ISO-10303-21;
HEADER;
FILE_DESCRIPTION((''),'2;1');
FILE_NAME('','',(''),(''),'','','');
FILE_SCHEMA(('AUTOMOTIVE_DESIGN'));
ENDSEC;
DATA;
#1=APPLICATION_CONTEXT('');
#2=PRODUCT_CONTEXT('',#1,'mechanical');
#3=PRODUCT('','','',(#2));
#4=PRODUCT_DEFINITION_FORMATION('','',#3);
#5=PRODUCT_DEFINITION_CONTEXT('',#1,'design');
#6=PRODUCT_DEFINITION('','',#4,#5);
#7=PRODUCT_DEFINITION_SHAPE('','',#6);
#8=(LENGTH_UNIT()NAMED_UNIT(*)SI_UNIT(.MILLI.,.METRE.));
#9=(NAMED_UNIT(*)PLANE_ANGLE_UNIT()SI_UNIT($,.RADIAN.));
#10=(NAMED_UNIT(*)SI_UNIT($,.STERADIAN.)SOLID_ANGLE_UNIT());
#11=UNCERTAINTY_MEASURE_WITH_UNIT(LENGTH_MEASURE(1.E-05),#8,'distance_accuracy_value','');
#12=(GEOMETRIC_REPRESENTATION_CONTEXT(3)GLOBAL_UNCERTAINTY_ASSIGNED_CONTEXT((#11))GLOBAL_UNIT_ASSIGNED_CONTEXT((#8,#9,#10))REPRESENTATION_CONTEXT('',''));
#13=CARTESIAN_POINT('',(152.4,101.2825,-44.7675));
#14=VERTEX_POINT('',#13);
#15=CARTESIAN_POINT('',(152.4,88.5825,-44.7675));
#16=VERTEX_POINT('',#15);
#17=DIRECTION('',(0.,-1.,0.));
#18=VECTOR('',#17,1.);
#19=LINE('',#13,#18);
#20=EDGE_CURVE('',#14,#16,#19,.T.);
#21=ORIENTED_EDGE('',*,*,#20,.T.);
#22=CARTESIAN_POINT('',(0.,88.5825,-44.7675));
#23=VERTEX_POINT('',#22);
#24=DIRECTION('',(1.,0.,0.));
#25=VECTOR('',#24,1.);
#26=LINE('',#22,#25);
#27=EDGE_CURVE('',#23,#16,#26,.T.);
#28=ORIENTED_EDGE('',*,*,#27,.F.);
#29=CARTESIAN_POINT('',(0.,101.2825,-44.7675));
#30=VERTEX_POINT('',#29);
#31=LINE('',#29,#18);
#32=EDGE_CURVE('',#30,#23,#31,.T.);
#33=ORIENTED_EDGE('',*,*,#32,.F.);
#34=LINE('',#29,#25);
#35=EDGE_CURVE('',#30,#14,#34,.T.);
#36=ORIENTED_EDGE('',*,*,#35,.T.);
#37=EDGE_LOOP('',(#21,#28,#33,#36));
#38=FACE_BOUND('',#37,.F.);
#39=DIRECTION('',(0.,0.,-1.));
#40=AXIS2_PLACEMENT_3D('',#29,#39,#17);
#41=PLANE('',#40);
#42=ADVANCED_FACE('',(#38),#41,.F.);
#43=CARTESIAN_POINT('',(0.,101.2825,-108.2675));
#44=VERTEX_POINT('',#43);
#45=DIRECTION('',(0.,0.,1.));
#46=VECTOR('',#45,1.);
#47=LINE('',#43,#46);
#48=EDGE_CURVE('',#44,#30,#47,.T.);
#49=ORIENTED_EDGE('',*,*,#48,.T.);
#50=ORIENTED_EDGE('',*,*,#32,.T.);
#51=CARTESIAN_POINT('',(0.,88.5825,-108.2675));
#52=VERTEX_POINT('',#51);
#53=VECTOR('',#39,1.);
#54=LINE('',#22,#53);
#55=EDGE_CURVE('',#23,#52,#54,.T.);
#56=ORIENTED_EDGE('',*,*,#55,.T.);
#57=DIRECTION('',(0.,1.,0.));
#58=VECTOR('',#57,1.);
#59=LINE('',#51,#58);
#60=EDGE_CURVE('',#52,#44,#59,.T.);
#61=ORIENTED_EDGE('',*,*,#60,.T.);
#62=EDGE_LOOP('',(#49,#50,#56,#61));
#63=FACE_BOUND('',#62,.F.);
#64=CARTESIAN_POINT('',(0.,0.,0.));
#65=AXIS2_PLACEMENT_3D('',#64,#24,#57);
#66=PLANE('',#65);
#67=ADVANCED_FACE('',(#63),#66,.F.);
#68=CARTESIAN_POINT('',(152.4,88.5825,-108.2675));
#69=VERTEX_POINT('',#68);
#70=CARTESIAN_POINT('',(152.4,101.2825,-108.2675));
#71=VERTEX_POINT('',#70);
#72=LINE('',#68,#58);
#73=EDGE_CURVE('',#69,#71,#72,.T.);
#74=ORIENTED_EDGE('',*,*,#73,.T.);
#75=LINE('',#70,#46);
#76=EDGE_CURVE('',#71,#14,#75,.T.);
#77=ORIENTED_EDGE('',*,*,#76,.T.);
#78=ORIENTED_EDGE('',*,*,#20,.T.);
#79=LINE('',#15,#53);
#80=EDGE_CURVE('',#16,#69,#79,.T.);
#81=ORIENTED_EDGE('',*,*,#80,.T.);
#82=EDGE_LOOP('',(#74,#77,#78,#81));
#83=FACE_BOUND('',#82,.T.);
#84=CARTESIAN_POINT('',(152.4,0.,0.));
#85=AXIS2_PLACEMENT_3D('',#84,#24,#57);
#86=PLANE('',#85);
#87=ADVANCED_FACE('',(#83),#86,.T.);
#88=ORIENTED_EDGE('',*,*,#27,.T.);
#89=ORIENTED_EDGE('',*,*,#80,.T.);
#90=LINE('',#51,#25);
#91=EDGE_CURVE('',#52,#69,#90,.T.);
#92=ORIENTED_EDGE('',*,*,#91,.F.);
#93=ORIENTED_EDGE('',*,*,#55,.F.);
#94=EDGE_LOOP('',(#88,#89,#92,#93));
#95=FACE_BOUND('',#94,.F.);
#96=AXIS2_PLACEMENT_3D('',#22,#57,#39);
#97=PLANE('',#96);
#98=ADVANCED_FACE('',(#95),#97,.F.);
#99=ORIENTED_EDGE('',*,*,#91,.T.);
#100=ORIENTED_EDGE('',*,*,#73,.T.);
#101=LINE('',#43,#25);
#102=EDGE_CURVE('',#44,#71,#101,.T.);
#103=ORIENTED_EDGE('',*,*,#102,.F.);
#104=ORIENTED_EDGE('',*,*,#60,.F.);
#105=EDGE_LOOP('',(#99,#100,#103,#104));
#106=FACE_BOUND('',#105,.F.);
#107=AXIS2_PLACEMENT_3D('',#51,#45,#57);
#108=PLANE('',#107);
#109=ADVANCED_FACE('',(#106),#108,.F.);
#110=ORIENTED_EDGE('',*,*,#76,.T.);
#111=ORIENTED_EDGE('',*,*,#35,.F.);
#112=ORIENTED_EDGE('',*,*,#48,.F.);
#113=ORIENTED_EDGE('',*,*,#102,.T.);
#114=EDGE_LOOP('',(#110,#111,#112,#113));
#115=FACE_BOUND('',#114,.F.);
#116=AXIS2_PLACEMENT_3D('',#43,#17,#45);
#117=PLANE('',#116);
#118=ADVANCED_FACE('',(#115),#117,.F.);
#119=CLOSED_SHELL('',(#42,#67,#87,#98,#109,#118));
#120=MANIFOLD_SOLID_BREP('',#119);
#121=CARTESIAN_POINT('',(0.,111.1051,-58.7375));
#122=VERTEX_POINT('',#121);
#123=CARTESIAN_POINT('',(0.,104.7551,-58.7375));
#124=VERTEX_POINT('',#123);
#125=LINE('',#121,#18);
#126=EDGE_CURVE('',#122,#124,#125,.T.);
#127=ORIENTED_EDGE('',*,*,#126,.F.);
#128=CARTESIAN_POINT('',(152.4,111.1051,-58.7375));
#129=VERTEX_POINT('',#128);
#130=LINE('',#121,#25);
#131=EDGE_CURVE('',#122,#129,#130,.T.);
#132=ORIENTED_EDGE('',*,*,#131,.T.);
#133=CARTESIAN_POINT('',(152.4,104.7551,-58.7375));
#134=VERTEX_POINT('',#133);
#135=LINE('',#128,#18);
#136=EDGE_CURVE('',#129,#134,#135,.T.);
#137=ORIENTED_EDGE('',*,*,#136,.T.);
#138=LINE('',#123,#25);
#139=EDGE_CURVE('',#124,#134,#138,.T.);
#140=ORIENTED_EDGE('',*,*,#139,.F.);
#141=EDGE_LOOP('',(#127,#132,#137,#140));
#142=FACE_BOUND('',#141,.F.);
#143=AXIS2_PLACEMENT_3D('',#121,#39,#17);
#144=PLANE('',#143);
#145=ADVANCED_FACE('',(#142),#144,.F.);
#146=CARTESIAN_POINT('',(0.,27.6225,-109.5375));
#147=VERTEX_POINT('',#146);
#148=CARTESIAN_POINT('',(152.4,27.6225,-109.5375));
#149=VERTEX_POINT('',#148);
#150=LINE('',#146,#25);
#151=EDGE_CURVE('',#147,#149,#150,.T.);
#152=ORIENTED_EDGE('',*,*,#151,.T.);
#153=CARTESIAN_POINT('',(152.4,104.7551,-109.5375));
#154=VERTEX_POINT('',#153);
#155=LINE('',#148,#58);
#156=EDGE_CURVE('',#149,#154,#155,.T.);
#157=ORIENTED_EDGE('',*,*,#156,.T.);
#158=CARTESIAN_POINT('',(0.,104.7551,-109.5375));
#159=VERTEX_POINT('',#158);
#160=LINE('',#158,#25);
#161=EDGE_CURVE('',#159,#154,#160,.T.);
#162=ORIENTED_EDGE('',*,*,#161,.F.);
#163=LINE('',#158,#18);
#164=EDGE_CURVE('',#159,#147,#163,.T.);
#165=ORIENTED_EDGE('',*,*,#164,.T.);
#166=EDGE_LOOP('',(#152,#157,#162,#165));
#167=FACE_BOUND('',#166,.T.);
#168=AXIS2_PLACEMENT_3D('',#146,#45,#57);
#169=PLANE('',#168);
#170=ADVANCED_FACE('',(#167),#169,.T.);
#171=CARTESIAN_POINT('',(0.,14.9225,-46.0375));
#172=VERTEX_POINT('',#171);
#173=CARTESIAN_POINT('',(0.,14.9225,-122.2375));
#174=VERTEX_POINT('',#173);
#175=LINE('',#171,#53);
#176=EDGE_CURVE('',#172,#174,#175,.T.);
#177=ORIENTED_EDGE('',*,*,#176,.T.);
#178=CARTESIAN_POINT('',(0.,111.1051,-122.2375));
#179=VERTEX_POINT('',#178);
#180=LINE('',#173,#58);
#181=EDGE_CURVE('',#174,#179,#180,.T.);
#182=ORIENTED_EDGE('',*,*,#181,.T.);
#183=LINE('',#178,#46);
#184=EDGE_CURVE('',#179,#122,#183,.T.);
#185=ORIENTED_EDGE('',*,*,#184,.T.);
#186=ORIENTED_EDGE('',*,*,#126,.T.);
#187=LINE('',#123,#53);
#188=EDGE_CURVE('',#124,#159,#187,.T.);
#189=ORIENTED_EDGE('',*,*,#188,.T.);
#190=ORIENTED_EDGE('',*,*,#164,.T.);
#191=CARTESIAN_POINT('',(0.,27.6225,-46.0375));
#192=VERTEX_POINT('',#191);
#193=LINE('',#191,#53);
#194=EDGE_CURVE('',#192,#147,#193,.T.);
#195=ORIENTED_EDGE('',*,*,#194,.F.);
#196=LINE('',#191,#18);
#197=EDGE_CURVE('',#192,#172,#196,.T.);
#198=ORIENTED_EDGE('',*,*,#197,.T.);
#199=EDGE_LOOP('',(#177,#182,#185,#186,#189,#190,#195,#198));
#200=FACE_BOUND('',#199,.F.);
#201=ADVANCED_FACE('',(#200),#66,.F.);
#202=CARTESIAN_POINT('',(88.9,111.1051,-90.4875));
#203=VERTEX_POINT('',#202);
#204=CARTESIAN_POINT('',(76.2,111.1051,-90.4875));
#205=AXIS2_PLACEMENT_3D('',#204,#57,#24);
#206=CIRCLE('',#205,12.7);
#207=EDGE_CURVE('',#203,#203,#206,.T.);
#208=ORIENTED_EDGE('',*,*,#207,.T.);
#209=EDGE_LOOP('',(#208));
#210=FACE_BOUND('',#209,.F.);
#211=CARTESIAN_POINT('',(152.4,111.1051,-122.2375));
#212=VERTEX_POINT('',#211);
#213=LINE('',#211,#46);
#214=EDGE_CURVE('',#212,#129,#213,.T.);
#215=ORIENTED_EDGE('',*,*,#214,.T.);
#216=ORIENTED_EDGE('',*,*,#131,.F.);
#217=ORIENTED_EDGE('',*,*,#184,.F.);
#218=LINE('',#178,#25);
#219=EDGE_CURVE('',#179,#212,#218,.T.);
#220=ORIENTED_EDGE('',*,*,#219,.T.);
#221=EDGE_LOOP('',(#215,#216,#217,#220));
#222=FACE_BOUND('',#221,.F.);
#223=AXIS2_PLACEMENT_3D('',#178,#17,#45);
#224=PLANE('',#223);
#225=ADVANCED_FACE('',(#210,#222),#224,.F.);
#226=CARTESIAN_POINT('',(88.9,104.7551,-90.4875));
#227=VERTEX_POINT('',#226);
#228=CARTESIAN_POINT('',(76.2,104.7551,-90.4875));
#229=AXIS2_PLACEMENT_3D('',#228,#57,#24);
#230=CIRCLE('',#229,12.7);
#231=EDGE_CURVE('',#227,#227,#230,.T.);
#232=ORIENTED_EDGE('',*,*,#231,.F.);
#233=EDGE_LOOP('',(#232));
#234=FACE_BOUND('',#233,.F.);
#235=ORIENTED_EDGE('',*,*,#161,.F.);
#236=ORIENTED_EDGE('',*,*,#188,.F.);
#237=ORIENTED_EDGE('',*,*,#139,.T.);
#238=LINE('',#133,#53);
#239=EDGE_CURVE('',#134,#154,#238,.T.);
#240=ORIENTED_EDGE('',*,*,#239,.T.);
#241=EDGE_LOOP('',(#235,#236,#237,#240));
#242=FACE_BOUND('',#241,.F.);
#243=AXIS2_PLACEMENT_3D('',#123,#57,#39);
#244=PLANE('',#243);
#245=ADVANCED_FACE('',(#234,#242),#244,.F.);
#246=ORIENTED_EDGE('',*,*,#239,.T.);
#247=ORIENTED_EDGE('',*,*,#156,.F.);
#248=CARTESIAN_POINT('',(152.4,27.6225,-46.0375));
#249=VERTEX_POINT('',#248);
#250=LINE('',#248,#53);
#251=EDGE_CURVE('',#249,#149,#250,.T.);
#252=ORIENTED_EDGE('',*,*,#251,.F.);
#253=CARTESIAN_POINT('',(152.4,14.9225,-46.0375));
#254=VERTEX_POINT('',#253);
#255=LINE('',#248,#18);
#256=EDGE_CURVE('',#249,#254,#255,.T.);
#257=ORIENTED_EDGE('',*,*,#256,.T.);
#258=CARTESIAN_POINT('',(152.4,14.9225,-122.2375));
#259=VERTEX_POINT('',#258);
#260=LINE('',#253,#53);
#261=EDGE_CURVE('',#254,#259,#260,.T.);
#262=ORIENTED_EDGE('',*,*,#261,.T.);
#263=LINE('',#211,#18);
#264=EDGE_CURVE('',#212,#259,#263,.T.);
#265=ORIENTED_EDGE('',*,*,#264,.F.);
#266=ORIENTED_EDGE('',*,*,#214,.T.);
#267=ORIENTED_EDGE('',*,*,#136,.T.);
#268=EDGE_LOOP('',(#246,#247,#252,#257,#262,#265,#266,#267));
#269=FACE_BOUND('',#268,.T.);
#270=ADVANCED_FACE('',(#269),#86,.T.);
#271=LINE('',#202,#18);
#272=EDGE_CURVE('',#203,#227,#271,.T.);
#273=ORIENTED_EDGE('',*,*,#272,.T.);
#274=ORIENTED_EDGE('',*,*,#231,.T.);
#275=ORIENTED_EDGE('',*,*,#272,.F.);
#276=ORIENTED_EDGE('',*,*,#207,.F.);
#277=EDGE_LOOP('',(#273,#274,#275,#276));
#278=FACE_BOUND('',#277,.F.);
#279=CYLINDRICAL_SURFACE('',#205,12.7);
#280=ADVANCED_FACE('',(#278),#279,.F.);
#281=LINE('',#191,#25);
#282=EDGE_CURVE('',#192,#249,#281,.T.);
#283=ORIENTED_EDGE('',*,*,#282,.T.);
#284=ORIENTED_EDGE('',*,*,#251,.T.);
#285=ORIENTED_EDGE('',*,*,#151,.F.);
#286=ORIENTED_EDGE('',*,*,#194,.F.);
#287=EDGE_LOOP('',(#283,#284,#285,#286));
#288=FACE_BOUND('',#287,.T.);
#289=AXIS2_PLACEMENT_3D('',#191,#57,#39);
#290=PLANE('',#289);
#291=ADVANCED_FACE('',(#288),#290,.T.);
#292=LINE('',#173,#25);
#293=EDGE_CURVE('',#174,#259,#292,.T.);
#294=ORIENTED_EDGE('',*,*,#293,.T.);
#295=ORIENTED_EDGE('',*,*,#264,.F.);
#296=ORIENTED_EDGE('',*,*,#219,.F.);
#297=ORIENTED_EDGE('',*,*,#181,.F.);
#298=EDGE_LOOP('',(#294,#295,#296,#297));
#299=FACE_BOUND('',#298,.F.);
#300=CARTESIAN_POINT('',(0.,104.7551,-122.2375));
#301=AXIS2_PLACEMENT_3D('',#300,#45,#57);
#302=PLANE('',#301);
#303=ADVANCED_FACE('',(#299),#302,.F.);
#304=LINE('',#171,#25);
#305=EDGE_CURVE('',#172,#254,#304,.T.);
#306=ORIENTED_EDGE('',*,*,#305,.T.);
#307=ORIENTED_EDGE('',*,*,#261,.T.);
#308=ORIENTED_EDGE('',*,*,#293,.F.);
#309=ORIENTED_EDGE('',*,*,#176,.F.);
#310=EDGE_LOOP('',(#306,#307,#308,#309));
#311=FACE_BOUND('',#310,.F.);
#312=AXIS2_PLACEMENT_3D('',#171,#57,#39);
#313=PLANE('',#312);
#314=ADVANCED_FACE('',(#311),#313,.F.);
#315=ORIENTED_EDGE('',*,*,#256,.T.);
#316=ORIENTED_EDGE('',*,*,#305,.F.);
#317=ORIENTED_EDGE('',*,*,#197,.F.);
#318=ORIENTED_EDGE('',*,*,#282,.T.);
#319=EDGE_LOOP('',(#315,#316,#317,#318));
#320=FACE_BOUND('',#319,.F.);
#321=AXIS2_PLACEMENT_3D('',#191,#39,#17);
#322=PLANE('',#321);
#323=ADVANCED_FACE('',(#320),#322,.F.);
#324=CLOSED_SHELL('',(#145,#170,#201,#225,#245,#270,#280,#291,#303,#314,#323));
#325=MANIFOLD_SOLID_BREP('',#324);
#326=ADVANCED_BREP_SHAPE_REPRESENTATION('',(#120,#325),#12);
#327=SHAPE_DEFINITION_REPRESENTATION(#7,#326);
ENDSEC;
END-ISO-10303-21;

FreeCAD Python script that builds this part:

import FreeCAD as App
import Part
import Sketcher
Q = App.Units.Quantity


def add_polygon(sketch, points):
    """Adds a closed chain of lines whose ends are joined by coincident constraints."""
    first, n = sketch.GeometryCount, len(points)
    for a, b in zip(points, points[1:] + points[:1]):
        sketch.addGeometry(Part.LineSegment(App.Vector(*a, 0), App.Vector(*b, 0)), False)
    for i in range(n):
        sketch.addConstraint(Sketcher.Constraint("Coincident", first + i, 2, first + (i + 1) % n, 1))

doc = App.newDocument("Part")
body = doc.addObject("PartDesign::Body", "Body")
body.AllowCompound = True

# Sketch on YZ plane
sketch1 = body.newObject("Sketcher::SketchObject", "Sketch")
sketch1.AttachmentSupport = (doc.getObject("YZ_Plane"), [""])
sketch1.MapMode = "FlatFace"
add_polygon(sketch1, [(28, -110), (28, -46), (15, -46), (15, -122), (111, -122), (111, -59), (105, -59), (105, -110)])  # lines 0-7
add_polygon(sketch1, [(101, -108), (101, -45), (89, -45), (89, -108)])  # lines 8-11
sketch1.addConstraint(Sketcher.Constraint("Vertical", 0))
sketch1.addConstraint(Sketcher.Constraint("Horizontal", 1))
sketch1.addConstraint(Sketcher.Constraint("Vertical", 2))
sketch1.addConstraint(Sketcher.Constraint("Horizontal", 3))
sketch1.addConstraint(Sketcher.Constraint("Vertical", 4))
sketch1.addConstraint(Sketcher.Constraint("Horizontal", 5))
sketch1.addConstraint(Sketcher.Constraint("Vertical", 6))
sketch1.addConstraint(Sketcher.Constraint("Horizontal", 7))
sketch1.addConstraint(Sketcher.Constraint("Vertical", 8))
sketch1.addConstraint(Sketcher.Constraint("Horizontal", 9))
sketch1.addConstraint(Sketcher.Constraint("Vertical", 10))
sketch1.addConstraint(Sketcher.Constraint("Horizontal", 11))
sketch1.addConstraint(Sketcher.Constraint("Equal", 1, 9))
sketch1.addConstraint(Sketcher.Constraint("Equal", 0, 4))
sketch1.addConstraint(Sketcher.Constraint("Equal", 4, 8))
sketch1.addConstraint(Sketcher.Constraint("DistanceX", 1, 2, 1, 1, Q("0.5 in")))
sketch1.addConstraint(Sketcher.Constraint("DistanceY", 0, 1, 0, 2, Q("2.5 in")))
sketch1.addConstraint(Sketcher.Constraint("DistanceX", 5, 2, 5, 1, Q("0.25 in")))
sketch1.addConstraint(Sketcher.Constraint("DistanceY", 4, 2, 0, 2, Q("0.5 in")))
sketch1.addConstraint(Sketcher.Constraint("DistanceX", 0, 2, 9, 2, Q("2.4 in")))
sketch1.addConstraint(Sketcher.Constraint("DistanceY", 0, 2, 8, 2, Q("0.05 in")))
sketch1.addConstraint(Sketcher.Constraint("DistanceY", 0, 2, -1, 1, Q("1.8125 in")))
sketch1.addConstraint(Sketcher.Constraint("DistanceX", 3, 1, 3, 2, Q("96.1826 mm")))
sketch1.addConstraint(Sketcher.Constraint("DistanceX", -1, 1, 0, 2, Q("1.0875 in")))
pad1 = body.newObject("PartDesign::Pad", "Pad")
pad1.Profile = sketch1
pad1.Length = Q("6 in")

# Sketch on XZ plane
sketch2 = body.newObject("Sketcher::SketchObject", "Sketch001")
sketch2.AttachmentSupport = (doc.getObject("XZ_Plane"), [""])
sketch2.MapMode = "FlatFace"
sketch2.AttachmentOffset = App.Placement(App.Vector(0, 0, -111.1051), App.Rotation())
sketch2.addGeometry(Part.Circle(App.Vector(76, -90, 0), App.Vector(0, 0, 1), 13), False)
sketch2.addConstraint(Sketcher.Constraint("Diameter", 0, Q("1 in")))
sketch2.addConstraint(Sketcher.Constraint("DistanceX", -1, 1, 0, 3, Q("3 in")))
sketch2.addConstraint(Sketcher.Constraint("DistanceY", 0, 3, -1, 1, Q("3.5625 in")))
pocket1 = body.newObject("PartDesign::Pocket", "Pocket")
pocket1.Profile = sketch2
pocket1.Length = Q("0.3 in")
pocket1.Reversed = True

doc.recompute()
